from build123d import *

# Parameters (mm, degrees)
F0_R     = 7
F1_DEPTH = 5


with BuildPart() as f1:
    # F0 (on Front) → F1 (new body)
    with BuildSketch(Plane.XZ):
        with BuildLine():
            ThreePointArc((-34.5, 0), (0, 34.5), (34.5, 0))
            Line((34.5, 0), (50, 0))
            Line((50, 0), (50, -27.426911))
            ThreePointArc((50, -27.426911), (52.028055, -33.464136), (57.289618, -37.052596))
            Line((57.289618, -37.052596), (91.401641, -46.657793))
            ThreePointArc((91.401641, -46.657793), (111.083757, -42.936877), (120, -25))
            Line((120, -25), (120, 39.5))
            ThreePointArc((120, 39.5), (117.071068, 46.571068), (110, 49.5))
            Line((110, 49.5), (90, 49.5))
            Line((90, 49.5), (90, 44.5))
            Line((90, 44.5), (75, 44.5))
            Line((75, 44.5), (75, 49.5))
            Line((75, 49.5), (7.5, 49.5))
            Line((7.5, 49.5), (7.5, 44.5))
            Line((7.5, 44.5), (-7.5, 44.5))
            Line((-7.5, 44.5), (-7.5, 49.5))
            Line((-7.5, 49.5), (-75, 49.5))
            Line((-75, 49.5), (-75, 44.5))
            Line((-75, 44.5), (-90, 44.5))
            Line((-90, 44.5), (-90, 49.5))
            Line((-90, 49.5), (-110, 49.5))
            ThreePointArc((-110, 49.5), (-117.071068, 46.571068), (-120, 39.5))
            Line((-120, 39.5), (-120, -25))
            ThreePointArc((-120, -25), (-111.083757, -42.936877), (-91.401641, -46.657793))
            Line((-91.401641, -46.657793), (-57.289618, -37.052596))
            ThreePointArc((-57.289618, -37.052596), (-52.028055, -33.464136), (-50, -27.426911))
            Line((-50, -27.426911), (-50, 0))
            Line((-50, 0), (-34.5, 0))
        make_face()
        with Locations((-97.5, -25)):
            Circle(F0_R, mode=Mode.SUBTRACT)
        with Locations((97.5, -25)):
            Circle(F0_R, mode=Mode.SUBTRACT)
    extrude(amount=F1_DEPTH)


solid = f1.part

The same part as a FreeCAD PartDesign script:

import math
import FreeCAD as App
import Part
import Sketcher

doc = App.newDocument("Part")
body = doc.addObject("PartDesign::Body", "Body")

# Sketch on XZ plane
sketch1 = doc.addObject("Sketcher::SketchObject", "Sketch")
body.addObject(sketch1)
sketch1.AttachmentSupport = (doc.XZ_Plane, [""])
sketch1.MapMode = "FlatFace"
sketch1.addGeometry(Part.ArcOfCircle(Part.Circle(App.Vector(0, 0, 0), App.Vector(0, 0, 1), 34), math.radians(0), math.radians(180)), False)
sketch1.addGeometry(Part.LineSegment(App.Vector(34, 0, 0), App.Vector(50, 0, 0)), False)
sketch1.addGeometry(Part.LineSegment(App.Vector(50, 0, 0), App.Vector(50, -27, 0)), False)
sketch1.addGeometry(Part.ArcOfCircle(Part.Circle(App.Vector(60, -27, 0), App.Vector(0, 0, 1), 10), math.radians(-180), math.radians(-106)), False)
sketch1.addGeometry(Part.LineSegment(App.Vector(57, -37, 0), App.Vector(91, -47, 0)), False)
sketch1.addGeometry(Part.ArcOfCircle(Part.Circle(App.Vector(98, -25, 0), App.Vector(0, 0, 1), 22), math.radians(-106), math.radians(0)), False)
sketch1.addGeometry(Part.LineSegment(App.Vector(120, -25, 0), App.Vector(120, 40, 0)), False)
sketch1.addGeometry(Part.ArcOfCircle(Part.Circle(App.Vector(110, 40, 0), App.Vector(0, 0, 1), 10), math.radians(0), math.radians(90)), False)
sketch1.addGeometry(Part.LineSegment(App.Vector(110, 50, 0), App.Vector(90, 50, 0)), False)
sketch1.addGeometry(Part.LineSegment(App.Vector(90, 50, 0), App.Vector(90, 44, 0)), False)
sketch1.addGeometry(Part.LineSegment(App.Vector(90, 44, 0), App.Vector(75, 44, 0)), False)
sketch1.addGeometry(Part.LineSegment(App.Vector(75, 44, 0), App.Vector(75, 50, 0)), False)
sketch1.addGeometry(Part.LineSegment(App.Vector(75, 50, 0), App.Vector(8, 50, 0)), False)
sketch1.addGeometry(Part.LineSegment(App.Vector(8, 50, 0), App.Vector(8, 44, 0)), False)
sketch1.addGeometry(Part.LineSegment(App.Vector(8, 44, 0), App.Vector(-8, 44, 0)), False)
sketch1.addGeometry(Part.LineSegment(App.Vector(-8, 44, 0), App.Vector(-8, 50, 0)), False)
sketch1.addGeometry(Part.LineSegment(App.Vector(-8, 50, 0), App.Vector(-75, 50, 0)), False)
sketch1.addGeometry(Part.LineSegment(App.Vector(-75, 50, 0), App.Vector(-75, 44, 0)), False)
sketch1.addGeometry(Part.LineSegment(App.Vector(-75, 44, 0), App.Vector(-90, 44, 0)), False)
sketch1.addGeometry(Part.LineSegment(App.Vector(-90, 44, 0), App.Vector(-90, 50, 0)), False)
sketch1.addGeometry(Part.LineSegment(App.Vector(-90, 50, 0), App.Vector(-110, 50, 0)), False)
sketch1.addGeometry(Part.ArcOfCircle(Part.Circle(App.Vector(-110, 40, 0), App.Vector(0, 0, 1), 10), math.radians(90), math.radians(180)), False)
sketch1.addGeometry(Part.LineSegment(App.Vector(-120, 40, 0), App.Vector(-120, -25, 0)), False)
sketch1.addGeometry(Part.ArcOfCircle(Part.Circle(App.Vector(-98, -25, 0), App.Vector(0, 0, 1), 22), math.radians(180), math.radians(286)), False)
sketch1.addGeometry(Part.LineSegment(App.Vector(-91, -47, 0), App.Vector(-57, -37, 0)), False)
sketch1.addGeometry(Part.ArcOfCircle(Part.Circle(App.Vector(-60, -27, 0), App.Vector(0, 0, 1), 10), math.radians(-74), math.radians(0)), False)
sketch1.addGeometry(Part.LineSegment(App.Vector(-50, -27, 0), App.Vector(-50, 0, 0)), False)
sketch1.addGeometry(Part.LineSegment(App.Vector(-50, 0, 0), App.Vector(-34, 0, 0)), False)
sketch1.addGeometry(Part.Circle(App.Vector(-98, -25, 0), App.Vector(0, 0, 1), 7), False)
sketch1.addGeometry(Part.Circle(App.Vector(98, -25, 0), App.Vector(0, 0, 1), 7), False)
sketch1.addConstraint(Sketcher.Constraint("Coincident", 0, 1, 1, 1))
sketch1.addConstraint(Sketcher.Constraint("Coincident", 1, 2, 2, 1))
sketch1.addConstraint(Sketcher.Constraint("Tangent", 2, 2, 3, 1))
sketch1.addConstraint(Sketcher.Constraint("Tangent", 3, 2, 4, 1))
sketch1.addConstraint(Sketcher.Constraint("Tangent", 4, 2, 5, 1))
sketch1.addConstraint(Sketcher.Constraint("Tangent", 5, 2, 6, 1))
sketch1.addConstraint(Sketcher.Constraint("Tangent", 6, 2, 7, 1))
sketch1.addConstraint(Sketcher.Constraint("Tangent", 7, 2, 8, 1))
sketch1.addConstraint(Sketcher.Constraint("Coincident", 8, 2, 9, 1))
sketch1.addConstraint(Sketcher.Constraint("Coincident", 9, 2, 10, 1))
sketch1.addConstraint(Sketcher.Constraint("Coincident", 10, 2, 11, 1))
sketch1.addConstraint(Sketcher.Constraint("Coincident", 11, 2, 12, 1))
sketch1.addConstraint(Sketcher.Constraint("Coincident", 12, 2, 13, 1))
sketch1.addConstraint(Sketcher.Constraint("Coincident", 13, 2, 14, 1))
sketch1.addConstraint(Sketcher.Constraint("Coincident", 14, 2, 15, 1))
sketch1.addConstraint(Sketcher.Constraint("Coincident", 15, 2, 16, 1))
sketch1.addConstraint(Sketcher.Constraint("Coincident", 16, 2, 17, 1))
sketch1.addConstraint(Sketcher.Constraint("Coincident", 17, 2, 18, 1))
sketch1.addConstraint(Sketcher.Constraint("Coincident", 18, 2, 19, 1))
sketch1.addConstraint(Sketcher.Constraint("Coincident", 19, 2, 20, 1))
sketch1.addConstraint(Sketcher.Constraint("Tangent", 20, 2, 21, 1))
sketch1.addConstraint(Sketcher.Constraint("Tangent", 21, 2, 22, 1))
sketch1.addConstraint(Sketcher.Constraint("Tangent", 22, 2, 23, 1))
sketch1.addConstraint(Sketcher.Constraint("Tangent", 23, 2, 24, 1))
sketch1.addConstraint(Sketcher.Constraint("Tangent", 24, 2, 25, 1))
sketch1.addConstraint(Sketcher.Constraint("Tangent", 25, 2, 26, 1))
sketch1.addConstraint(Sketcher.Constraint("Coincident", 26, 2, 27, 1))
sketch1.addConstraint(Sketcher.Constraint("Coincident", 27, 2, 0, 2))
sketch1.addConstraint(Sketcher.Constraint("Horizontal", 1))
sketch1.addConstraint(Sketcher.Constraint("Vertical", 2))
sketch1.addConstraint(Sketcher.Constraint("Vertical", 6))
sketch1.addConstraint(Sketcher.Constraint("Horizontal", 8))
sketch1.addConstraint(Sketcher.Constraint("Vertical", 9))
sketch1.addConstraint(Sketcher.Constraint("Horizontal", 10))
sketch1.addConstraint(Sketcher.Constraint("Vertical", 11))
sketch1.addConstraint(Sketcher.Constraint("Horizontal", 12))
sketch1.addConstraint(Sketcher.Constraint("Vertical", 13))
sketch1.addConstraint(Sketcher.Constraint("Horizontal", 14))
sketch1.addConstraint(Sketcher.Constraint("Vertical", 15))
sketch1.addConstraint(Sketcher.Constraint("Horizontal", 16))
sketch1.addConstraint(Sketcher.Constraint("Vertical", 17))
sketch1.addConstraint(Sketcher.Constraint("Horizontal", 18))
sketch1.addConstraint(Sketcher.Constraint("Vertical", 19))
sketch1.addConstraint(Sketcher.Constraint("Horizontal", 20))
sketch1.addConstraint(Sketcher.Constraint("Vertical", 22))
sketch1.addConstraint(Sketcher.Constraint("Vertical", 26))
sketch1.addConstraint(Sketcher.Constraint("Horizontal", 27))
sketch1.addConstraint(Sketcher.Constraint("Coincident", 0, 3, -1, 1))
sketch1.addConstraint(Sketcher.Constraint("Coincident", 28, 3, 23, 3))
sketch1.addConstraint(Sketcher.Constraint("Coincident", 29, 3, 5, 3))
sketch1.addConstraint(Sketcher.Constraint("Equal", 3, 7))
sketch1.addConstraint(Sketcher.Constraint("Equal", 7, 21))
sketch1.addConstraint(Sketcher.Constraint("Equal", 5, 23))
sketch1.addConstraint(Sketcher.Constraint("Equal", 21, 25))
sketch1.addConstraint(Sketcher.Constraint("Equal", 28, 29))
sketch1.addConstraint(Sketcher.Constraint("Symmetric", 1, 2, 26, 2, -1, 1))
sketch1.addConstraint(Sketcher.Constraint("Symmetric", 7, 3, 21, 3, -2))
sketch1.addConstraint(Sketcher.Constraint("Symmetric", 12, 2, 15, 2, -2))
sketch1.addConstraint(Sketcher.Constraint("Symmetric", 10, 2, 17, 2, -2))
sketch1.addConstraint(Sketcher.Constraint("Symmetric", 4, 2, 23, 2, -2))
sketch1.addConstraint(Sketcher.Constraint("PointOnObject", 0, 1, -1))
sketch1.addConstraint(Sketcher.Constraint("Horizontal", 8, 2, 11, 2))
sketch1.addConstraint(Sketcher.Constraint("Horizontal", 10, 2, 13, 2))
sketch1.addConstraint(Sketcher.Constraint("Equal", 10, 14))
sketch1.addConstraint(Sketcher.Constraint("Equal", 14, 18))
sketch1.addConstraint(Sketcher.Constraint("Diameter", 28, 14.0))
sketch1.addConstraint(Sketcher.Constraint("Radius", 3, 9.999999))
sketch1.addConstraint(Sketcher.Constraint("Radius", 0, 34.5))
sketch1.addConstraint(Sketcher.Constraint("Radius", 5, 22.499999))
sketch1.addConstraint(Sketcher.Constraint("DistanceX", 8, 2, 8, 1, 20.0))
sketch1.addConstraint(Sketcher.Constraint("DistanceX", 10, 2, 10, 1, 15.0))
sketch1.addConstraint(Sketcher.Constraint("DistanceY", 9, 2, 9, 1, 5.0))
sketch1.addConstraint(Sketcher.Constraint("DistanceX", 1, 1, 1, 2, 15.5))
sketch1.addConstraint(Sketcher.Constraint("DistanceX", 12, 2, 12, 1, 67.5))
sketch1.addConstraint(Sketcher.Constraint("DistanceY", 6, 1, 6, 2, 64.5))
sketch1.addConstraint(Sketcher.Constraint("DistanceY", 5, 3, -1, 1, 25.000001))
sketch1.addConstraint(Sketcher.Constraint("DistanceY", 2, 2, 2, 1, 27.426911))
pad1 = doc.addObject("PartDesign::Pad", "Pad")
body.addObject(pad1)
pad1.Profile = sketch1
pad1.Length = 5

doc.recompute()
